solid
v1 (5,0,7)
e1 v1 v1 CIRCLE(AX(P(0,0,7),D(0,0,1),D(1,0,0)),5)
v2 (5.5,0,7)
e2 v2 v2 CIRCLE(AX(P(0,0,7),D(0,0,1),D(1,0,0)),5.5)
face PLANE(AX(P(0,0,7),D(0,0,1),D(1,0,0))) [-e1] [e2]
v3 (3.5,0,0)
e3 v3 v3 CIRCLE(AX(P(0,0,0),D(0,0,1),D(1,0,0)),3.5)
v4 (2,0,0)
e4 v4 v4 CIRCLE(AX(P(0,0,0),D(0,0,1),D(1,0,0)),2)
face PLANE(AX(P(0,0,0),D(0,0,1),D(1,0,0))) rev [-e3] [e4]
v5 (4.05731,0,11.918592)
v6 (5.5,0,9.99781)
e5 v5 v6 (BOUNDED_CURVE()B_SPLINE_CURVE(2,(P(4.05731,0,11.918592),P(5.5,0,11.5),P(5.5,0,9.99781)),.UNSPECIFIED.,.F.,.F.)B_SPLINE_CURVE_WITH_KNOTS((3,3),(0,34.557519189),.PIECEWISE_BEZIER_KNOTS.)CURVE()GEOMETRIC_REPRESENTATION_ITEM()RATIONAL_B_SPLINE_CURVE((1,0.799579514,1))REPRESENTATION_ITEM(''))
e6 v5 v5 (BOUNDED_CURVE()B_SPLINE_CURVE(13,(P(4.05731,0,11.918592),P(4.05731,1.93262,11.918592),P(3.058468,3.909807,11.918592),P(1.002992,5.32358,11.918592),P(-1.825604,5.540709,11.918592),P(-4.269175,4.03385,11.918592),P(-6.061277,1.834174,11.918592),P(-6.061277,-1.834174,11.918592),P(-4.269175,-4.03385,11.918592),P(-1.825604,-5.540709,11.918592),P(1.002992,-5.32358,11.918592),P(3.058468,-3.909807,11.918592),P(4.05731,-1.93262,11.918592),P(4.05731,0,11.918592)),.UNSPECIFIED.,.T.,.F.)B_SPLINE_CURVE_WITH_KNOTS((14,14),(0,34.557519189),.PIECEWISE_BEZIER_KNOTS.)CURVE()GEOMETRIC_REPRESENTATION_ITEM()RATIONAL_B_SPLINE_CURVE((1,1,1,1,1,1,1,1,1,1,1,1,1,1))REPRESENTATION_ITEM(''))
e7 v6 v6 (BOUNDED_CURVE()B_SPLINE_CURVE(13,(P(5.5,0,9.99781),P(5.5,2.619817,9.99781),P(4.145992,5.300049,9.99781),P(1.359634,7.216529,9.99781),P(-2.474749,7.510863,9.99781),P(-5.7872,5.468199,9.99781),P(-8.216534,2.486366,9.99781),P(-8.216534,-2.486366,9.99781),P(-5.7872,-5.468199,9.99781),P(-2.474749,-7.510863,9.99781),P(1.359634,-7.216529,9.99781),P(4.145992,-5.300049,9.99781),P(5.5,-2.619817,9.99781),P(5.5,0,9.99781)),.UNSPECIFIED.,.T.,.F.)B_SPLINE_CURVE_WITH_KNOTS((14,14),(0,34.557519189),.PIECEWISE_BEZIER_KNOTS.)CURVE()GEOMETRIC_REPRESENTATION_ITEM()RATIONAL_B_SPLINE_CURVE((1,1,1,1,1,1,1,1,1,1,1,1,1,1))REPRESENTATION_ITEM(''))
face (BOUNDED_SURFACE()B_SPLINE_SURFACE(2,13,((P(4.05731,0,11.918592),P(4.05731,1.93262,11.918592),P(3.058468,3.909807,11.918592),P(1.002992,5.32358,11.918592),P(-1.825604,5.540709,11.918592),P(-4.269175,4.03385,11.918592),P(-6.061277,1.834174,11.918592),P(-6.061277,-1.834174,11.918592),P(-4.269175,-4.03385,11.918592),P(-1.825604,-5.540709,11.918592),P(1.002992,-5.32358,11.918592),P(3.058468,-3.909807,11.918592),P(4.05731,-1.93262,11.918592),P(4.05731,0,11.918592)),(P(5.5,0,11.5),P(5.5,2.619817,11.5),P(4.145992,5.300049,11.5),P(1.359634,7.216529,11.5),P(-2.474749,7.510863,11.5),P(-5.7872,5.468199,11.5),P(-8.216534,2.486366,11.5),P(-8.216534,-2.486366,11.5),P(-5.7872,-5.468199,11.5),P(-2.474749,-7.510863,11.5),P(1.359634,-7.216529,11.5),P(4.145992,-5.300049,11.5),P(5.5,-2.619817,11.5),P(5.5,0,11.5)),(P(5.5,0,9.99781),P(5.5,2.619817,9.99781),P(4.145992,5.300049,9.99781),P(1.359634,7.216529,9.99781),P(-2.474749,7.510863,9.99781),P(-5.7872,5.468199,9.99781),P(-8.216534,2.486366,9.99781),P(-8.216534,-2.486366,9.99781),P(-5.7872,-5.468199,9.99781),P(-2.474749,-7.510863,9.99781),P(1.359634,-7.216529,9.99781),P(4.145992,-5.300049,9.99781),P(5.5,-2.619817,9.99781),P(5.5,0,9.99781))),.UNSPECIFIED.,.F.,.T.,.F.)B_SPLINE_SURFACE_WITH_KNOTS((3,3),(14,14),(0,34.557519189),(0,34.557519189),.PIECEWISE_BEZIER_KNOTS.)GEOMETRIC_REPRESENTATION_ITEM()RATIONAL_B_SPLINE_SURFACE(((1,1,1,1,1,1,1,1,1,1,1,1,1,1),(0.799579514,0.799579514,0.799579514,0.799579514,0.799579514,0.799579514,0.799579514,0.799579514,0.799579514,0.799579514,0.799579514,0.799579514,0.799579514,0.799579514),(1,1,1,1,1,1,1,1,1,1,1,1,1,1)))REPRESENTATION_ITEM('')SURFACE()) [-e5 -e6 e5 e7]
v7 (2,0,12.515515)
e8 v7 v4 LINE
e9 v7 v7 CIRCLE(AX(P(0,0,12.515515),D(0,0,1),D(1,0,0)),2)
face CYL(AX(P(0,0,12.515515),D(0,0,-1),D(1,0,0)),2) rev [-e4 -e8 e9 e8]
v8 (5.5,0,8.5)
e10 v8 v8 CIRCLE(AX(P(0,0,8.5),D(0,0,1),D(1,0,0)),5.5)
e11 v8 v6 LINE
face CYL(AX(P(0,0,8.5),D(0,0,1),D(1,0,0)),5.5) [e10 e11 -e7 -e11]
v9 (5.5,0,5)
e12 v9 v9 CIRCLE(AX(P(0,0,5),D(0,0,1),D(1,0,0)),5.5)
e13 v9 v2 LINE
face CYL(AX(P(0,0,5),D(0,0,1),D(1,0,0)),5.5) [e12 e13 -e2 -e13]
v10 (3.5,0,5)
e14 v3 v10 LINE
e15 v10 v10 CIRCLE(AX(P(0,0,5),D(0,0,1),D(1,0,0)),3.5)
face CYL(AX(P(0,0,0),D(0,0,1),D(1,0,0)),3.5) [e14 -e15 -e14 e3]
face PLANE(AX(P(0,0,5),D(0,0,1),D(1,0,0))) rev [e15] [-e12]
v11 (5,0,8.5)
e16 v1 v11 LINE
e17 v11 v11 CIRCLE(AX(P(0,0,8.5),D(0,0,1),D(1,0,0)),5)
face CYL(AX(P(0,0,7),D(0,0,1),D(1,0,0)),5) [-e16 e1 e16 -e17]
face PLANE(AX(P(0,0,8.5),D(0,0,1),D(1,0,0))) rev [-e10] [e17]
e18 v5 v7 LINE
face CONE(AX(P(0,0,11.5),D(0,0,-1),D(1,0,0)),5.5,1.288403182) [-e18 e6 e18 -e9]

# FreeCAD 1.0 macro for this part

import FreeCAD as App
import Part
import Sketcher
from FreeCAD import Vector


def edges_at(feature, points):
    """Names of the edges that pass closest to the given points."""
    edges = feature.Shape.Edges
    near = lambda p: min(range(len(edges)), key=lambda i: edges[i].distToShape(Part.Vertex(*p))[0])
    return sorted({f"Edge{near(p) + 1}" for p in points})


def add_polygon(sketch, points):
    """Adds a closed chain of lines whose ends are joined by coincident constraints."""
    first, n = sketch.GeometryCount, len(points)
    for a, b in zip(points, points[1:] + points[:1]):
        sketch.addGeometry(Part.LineSegment(App.Vector(*a, 0), App.Vector(*b, 0)), False)
    for i in range(n):
        sketch.addConstraint(Sketcher.Constraint("Coincident", first + i, 2, first + (i + 1) % n, 1))

doc = App.newDocument("Part")
body = doc.addObject("PartDesign::Body", "Body")

sketch1 = doc.addObject("Sketcher::SketchObject", "Sketch")
body.addObject(sketch1)
sketch1.AttachmentSupport = (doc.XZ_Plane, [""])
sketch1.MapMode = "FlatFace"
add_polygon(sketch1, [(5.5, 11.5), (2, 12.515515), (2, 0), (3.5, 0), (3.5, 5), (5.5, 5), (5.5, 7), (5, 7), (5, 8.5), (5.5, 8.5)])
sketch1.addConstraint(Sketcher.Constraint("Vertical", 1))
sketch1.addConstraint(Sketcher.Constraint("Horizontal", 2))
sketch1.addConstraint(Sketcher.Constraint("Vertical", 3))
sketch1.addConstraint(Sketcher.Constraint("Horizontal", 4))
sketch1.addConstraint(Sketcher.Constraint("Vertical", 5))
sketch1.addConstraint(Sketcher.Constraint("Horizontal", 6))
sketch1.addConstraint(Sketcher.Constraint("Vertical", 7))
sketch1.addConstraint(Sketcher.Constraint("Horizontal", 8))
sketch1.addConstraint(Sketcher.Constraint("Vertical", 9))
sketch1.addConstraint(Sketcher.Constraint("PointOnObject", 1, 2, -1))
sketch1.addConstraint(Sketcher.Constraint("Vertical", 5, 2, 8, 2))
sketch1.addConstraint(Sketcher.Constraint("Equal", 4, 5))
sketch1.addConstraint(Sketcher.Constraint("Equal", 2, 7))
sketch1.addConstraint(Sketcher.Constraint("DistanceX", 4, 1, 4, 2, 2.0))
sketch1.addConstraint(Sketcher.Constraint("DistanceY", 3, 1, 3, 2, 5.0))
sketch1.addConstraint(Sketcher.Constraint("DistanceY", 9, 1, 9, 2, 3.0))
sketch1.addConstraint(Sketcher.Constraint("DistanceX", 2, 1, 2, 2, 1.5))
sketch1.addConstraint(Sketcher.Constraint("DistanceX", 6, 2, 6, 1, 0.5))
sketch1.addConstraint(Sketcher.Constraint("DistanceX", -1, 1, 0, 2, 2.0))
sketch1.addConstraint(Sketcher.Constraint("DistanceY", 1, 2, 1, 1, 12.515515))
revolution = doc.addObject("PartDesign::Revolution", "Revolution")
body.addObject(revolution)
revolution.Profile = sketch1
revolution.ReferenceAxis = (sketch1, ["V_Axis"])
revolution.Angle = 360
doc.recompute()

fillet = doc.addObject("PartDesign::Fillet", "Fillet")
body.addObject(fillet)
fillet.Base = (revolution, edges_at(revolution, [(-5.5, 0, 11.5)]))
fillet.Radius = 2

doc.recompute()
